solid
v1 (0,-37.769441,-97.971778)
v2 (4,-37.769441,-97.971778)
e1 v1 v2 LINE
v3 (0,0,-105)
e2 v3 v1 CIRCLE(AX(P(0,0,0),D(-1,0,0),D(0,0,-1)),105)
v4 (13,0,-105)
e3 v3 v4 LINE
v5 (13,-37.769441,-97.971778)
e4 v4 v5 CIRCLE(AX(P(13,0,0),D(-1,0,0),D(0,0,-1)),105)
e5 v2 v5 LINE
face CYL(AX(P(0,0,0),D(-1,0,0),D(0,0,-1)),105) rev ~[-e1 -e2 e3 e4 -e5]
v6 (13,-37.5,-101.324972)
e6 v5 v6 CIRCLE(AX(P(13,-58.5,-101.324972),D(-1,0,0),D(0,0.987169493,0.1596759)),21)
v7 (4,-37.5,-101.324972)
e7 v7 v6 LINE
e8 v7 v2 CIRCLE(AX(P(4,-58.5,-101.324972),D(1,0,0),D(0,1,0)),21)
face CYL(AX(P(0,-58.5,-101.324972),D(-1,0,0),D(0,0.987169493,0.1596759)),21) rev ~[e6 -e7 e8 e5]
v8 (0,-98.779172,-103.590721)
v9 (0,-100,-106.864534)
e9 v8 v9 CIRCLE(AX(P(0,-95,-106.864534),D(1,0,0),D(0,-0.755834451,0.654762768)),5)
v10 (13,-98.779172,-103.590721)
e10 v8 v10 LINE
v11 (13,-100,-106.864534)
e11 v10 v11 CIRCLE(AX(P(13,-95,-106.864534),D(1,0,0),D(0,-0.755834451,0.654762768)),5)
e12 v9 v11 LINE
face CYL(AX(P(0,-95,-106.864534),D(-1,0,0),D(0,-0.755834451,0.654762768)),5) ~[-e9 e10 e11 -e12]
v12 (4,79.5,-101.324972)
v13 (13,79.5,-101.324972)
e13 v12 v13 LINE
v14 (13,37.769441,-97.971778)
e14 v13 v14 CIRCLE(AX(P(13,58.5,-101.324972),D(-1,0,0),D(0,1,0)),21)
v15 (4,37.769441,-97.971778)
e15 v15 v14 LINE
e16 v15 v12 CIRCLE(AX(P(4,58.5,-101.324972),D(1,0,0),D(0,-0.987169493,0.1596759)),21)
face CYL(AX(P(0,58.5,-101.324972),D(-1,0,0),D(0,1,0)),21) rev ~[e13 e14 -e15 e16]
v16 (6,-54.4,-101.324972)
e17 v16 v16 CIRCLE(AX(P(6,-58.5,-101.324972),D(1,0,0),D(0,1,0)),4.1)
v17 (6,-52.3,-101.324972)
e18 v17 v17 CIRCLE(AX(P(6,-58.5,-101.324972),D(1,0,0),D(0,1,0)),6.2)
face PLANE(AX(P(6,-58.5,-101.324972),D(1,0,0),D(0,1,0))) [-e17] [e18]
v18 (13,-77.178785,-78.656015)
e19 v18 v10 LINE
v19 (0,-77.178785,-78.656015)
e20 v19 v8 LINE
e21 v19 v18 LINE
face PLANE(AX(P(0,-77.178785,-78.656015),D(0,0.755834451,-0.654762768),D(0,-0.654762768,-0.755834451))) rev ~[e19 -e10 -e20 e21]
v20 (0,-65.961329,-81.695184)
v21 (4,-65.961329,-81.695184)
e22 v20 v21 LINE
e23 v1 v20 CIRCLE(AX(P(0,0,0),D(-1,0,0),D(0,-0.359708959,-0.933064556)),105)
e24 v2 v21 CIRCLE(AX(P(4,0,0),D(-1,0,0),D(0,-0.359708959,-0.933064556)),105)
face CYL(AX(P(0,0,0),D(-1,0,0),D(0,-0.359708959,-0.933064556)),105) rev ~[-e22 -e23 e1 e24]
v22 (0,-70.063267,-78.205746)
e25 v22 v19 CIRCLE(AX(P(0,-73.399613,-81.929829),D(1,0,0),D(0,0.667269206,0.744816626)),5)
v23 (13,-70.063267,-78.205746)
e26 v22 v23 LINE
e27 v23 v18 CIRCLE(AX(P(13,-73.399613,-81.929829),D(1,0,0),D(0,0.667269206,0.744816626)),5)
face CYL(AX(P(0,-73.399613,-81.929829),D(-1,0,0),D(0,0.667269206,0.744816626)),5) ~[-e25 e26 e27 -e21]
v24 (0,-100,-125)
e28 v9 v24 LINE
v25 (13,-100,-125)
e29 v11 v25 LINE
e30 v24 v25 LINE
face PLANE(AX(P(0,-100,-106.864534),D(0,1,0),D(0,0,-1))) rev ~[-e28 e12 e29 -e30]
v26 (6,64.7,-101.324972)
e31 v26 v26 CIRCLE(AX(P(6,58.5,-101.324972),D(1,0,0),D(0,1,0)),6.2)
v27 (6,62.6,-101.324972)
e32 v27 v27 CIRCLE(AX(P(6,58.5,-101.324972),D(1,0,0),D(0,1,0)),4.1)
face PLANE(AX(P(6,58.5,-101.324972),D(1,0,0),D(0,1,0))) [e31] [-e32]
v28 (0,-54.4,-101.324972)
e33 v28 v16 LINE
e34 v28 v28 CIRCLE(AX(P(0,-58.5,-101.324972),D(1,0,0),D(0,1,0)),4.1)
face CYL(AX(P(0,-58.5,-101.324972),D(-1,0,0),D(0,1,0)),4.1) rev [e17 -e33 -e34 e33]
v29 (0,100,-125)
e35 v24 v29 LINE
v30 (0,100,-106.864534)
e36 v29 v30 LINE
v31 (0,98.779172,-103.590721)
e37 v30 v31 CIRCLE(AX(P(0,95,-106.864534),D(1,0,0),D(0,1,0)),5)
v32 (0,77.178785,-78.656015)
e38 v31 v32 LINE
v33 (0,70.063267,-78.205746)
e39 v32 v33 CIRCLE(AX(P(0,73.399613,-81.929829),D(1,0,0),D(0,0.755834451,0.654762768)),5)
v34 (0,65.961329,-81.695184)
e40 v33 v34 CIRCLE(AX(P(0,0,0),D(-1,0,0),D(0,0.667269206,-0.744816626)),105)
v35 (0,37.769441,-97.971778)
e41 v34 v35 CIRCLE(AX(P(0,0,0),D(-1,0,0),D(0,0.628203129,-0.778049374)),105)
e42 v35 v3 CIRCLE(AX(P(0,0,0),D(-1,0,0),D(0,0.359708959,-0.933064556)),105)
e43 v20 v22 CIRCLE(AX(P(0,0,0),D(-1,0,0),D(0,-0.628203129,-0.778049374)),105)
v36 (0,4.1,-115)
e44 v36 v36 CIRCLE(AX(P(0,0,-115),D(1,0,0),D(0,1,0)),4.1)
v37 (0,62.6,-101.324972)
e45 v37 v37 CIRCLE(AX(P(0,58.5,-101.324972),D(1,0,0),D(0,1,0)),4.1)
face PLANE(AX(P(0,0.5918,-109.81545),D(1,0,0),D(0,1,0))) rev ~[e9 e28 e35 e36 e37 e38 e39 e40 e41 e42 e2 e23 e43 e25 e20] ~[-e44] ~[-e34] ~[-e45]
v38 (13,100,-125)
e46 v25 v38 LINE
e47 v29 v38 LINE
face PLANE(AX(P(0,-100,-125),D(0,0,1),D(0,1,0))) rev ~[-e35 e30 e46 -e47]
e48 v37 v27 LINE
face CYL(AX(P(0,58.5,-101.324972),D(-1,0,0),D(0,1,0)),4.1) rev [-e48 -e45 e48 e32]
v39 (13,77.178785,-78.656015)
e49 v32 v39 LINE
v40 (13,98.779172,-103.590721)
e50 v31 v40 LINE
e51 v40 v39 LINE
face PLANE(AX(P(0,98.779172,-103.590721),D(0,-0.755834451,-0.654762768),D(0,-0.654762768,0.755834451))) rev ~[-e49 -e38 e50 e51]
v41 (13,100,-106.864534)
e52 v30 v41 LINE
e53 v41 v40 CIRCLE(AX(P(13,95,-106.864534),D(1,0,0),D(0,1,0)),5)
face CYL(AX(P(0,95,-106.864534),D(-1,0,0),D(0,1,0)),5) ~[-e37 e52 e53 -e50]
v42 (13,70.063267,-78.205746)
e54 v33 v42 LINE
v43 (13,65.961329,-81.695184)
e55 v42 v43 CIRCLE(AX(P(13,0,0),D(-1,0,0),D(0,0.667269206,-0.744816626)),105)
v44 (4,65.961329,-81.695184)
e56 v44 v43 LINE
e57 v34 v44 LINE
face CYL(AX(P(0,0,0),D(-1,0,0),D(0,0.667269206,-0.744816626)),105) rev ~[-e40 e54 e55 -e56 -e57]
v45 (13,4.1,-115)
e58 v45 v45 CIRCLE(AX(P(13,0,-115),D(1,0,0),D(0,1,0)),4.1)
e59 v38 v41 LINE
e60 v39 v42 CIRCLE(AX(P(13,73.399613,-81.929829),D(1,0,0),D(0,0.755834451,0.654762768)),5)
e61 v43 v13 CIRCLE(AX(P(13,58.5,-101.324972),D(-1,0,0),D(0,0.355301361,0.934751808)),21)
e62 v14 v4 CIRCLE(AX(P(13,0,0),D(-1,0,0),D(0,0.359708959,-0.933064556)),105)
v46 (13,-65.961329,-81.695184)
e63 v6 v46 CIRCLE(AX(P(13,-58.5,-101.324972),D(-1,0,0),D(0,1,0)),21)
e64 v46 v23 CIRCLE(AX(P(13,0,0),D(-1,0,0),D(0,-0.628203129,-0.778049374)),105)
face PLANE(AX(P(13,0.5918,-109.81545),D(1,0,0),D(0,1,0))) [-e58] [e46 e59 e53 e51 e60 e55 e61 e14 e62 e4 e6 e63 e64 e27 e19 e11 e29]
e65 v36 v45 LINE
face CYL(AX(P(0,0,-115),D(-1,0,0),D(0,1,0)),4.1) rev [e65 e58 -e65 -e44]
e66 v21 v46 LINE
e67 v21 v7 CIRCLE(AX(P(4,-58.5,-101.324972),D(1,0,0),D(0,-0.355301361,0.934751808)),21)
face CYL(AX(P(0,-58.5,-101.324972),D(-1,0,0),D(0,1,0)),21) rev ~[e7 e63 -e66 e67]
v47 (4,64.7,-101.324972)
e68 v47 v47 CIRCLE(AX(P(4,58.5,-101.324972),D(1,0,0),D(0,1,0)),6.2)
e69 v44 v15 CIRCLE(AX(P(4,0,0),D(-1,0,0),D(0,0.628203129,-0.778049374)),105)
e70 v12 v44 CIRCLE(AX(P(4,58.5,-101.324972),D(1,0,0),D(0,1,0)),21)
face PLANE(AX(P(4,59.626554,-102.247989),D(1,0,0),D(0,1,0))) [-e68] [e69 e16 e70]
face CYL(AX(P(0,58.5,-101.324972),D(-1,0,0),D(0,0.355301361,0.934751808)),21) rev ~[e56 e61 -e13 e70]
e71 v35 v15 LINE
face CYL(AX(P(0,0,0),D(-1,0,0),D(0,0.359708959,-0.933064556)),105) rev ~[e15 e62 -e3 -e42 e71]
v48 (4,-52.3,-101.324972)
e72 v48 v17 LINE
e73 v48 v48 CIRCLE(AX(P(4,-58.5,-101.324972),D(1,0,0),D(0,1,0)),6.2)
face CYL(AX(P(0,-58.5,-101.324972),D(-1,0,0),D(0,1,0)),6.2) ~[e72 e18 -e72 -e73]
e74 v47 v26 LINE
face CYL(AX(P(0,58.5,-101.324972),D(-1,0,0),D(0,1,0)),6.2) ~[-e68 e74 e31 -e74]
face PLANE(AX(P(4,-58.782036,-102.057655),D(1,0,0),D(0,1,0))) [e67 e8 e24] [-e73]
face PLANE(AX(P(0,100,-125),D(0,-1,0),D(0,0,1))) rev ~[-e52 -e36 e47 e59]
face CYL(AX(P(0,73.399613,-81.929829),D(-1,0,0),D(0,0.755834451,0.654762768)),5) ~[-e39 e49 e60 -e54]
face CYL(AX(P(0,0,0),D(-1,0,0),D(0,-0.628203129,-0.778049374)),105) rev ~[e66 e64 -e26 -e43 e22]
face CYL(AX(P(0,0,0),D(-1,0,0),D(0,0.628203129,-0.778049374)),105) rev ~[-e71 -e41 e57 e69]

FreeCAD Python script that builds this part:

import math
import FreeCAD as App
import Part
import Sketcher
Q = App.Units.Quantity

doc = App.newDocument("Part")
params = doc.addObject("Spreadsheet::Sheet", "Params")
for row, (alias, value) in enumerate([
    ("sketch1_diameter", "12.4 mm"),
    ("sketch1_diameter2", "8.2 mm"),
    ("pad1_length", "6 mm"),
    ("sketch2_radius", "21 mm"),
    ("sketch2_radius2", "105 mm"),
    ("sketch2_diameter", "12.4 mm"),
    ("pad2_length", "4 mm"),
    ("sketch3_diameter", "12.4 mm"),
    ("sketch3_diameter2", "8.2 mm"),
    ("pad3_length", "6 mm"),
    ("sketch4_radius", "105 mm"),
    ("sketch4_radius2", "21 mm"),
    ("sketch4_diameter", "12.4 mm"),
    ("pad4_length", "4 mm"),
    ("sketch5_radius", "21 mm"),
    ("sketch5_radius2", "105 mm"),
    ("sketch5_radius3", "5 mm"),
    ("sketch5_radius4", "5 mm"),
    ("sketch5_radius5", "5 mm"),
    ("pad5_length", "13 mm"),
], start=1):
    params.set(f"A{row}", alias)
    params.set(f"B{row}", "=" + value)
    params.setAlias(f"B{row}", alias)

body = doc.addObject("PartDesign::Body", "Body")

# Sketch on YZ plane
sketch1 = body.newObject("Sketcher::SketchObject", "Sketch")
sketch1.AttachmentSupport = (doc.getObject("YZ_Plane"), [""])
sketch1.MapMode = "FlatFace"
sketch1.addGeometry([
    Part.Circle(App.Vector(58.5, -101.3, 0), App.Vector(0, 0, 1), 6.2),
    Part.Circle(App.Vector(58.5, -101.3, 0), App.Vector(0, 0, 1), 4.1),
], False)
sketch1.addConstraint([
    Sketcher.Constraint("Coincident", 1, 3, 0, 3),
    Sketcher.Constraint("Diameter", 0, Q("12.4 mm")),
    Sketcher.Constraint("Diameter", 1, Q("8.2 mm")),
    Sketcher.Constraint("DistanceX", -1, 1, 0, 3, Q("58.5 mm")),
    Sketcher.Constraint("DistanceY", 0, 3, -1, 1, Q("101.324972 mm")),
])
sketch1.setExpression("Constraints[1]", "Params.sketch1_diameter")
sketch1.setExpression("Constraints[2]", "Params.sketch1_diameter2")
pad1 = body.newObject("PartDesign::Pad", "Pad")
pad1.Profile = sketch1
pad1.setExpression("Length", "Params.pad1_length")

# Sketch on YZ plane
sketch2 = body.newObject("Sketcher::SketchObject", "Sketch001")
sketch2.AttachmentSupport = (doc.getObject("YZ_Plane"), [""])
sketch2.MapMode = "FlatFace"
sketch2.addGeometry([
    Part.ArcOfCircle(Part.Circle(App.Vector(58, -101, 0), App.Vector(0, 0, 1), 21), math.radians(0), math.radians(69)),
    Part.ArcOfCircle(Part.Circle(App.Vector(0, 0, 0), App.Vector(0, 0, 1), 105), math.radians(-68.92), math.radians(-51.08)),
    Part.ArcOfCircle(Part.Circle(App.Vector(58, -101, 0), App.Vector(0, 0, 1), 21), math.radians(171), math.radians(360)),
    Part.Circle(App.Vector(58, -101, 0), App.Vector(0, 0, 1), 6),
], False)
sketch2.addConstraint([
    Sketcher.Constraint("Coincident", 0, 2, 1, 2),
    Sketcher.Constraint("Coincident", 1, 1, 2, 1),
    Sketcher.Constraint("Tangent", 2, 2, 0, 1),
    Sketcher.Constraint("Coincident", 1, 3, -1, 1),
    Sketcher.Constraint("Coincident", 3, 3, 0, 3),
    Sketcher.Constraint("Equal", 0, 2),
    Sketcher.Constraint("Horizontal", 3, 3, 2, 2),
    Sketcher.Constraint("Radius", 0, Q("21 mm")),
    Sketcher.Constraint("Radius", 1, Q("105 mm")),
    Sketcher.Constraint("Diameter", 3, Q("12.4 mm")),
    Sketcher.Constraint("DistanceX", -1, 1, 0, 3, Q("58.5 mm")),
    Sketcher.Constraint("DistanceX", -1, 1, 0, 2, Q("65.961329 mm")),
])
sketch2.setExpression("Constraints[7]", "Params.sketch2_radius")
sketch2.setExpression("Constraints[8]", "Params.sketch2_radius2")
sketch2.setExpression("Constraints[9]", "Params.sketch2_diameter")
pad2 = body.newObject("PartDesign::Pad", "Pad001")
pad2.Profile = sketch2
pad2.setExpression("Length", "Params.pad2_length")
body2 = doc.addObject("PartDesign::Body", "Body001")

# Sketch on YZ plane
sketch3 = body2.newObject("Sketcher::SketchObject", "Sketch002")
sketch3.AttachmentSupport = (doc.getObject("YZ_Plane001"), [""])
sketch3.MapMode = "FlatFace"
sketch3.addGeometry([
    Part.Circle(App.Vector(-58.5, -101.3, 0), App.Vector(0, 0, 1), 6.2),
    Part.Circle(App.Vector(-58.5, -101.3, 0), App.Vector(0, 0, 1), 4.1),
], False)
sketch3.addConstraint([
    Sketcher.Constraint("Coincident", 1, 3, 0, 3),
    Sketcher.Constraint("Diameter", 0, Q("12.4 mm")),
    Sketcher.Constraint("Diameter", 1, Q("8.2 mm")),
    Sketcher.Constraint("DistanceX", 0, 3, -1, 1, Q("58.5 mm")),
    Sketcher.Constraint("DistanceY", 0, 3, -1, 1, Q("101.324972 mm")),
])
sketch3.setExpression("Constraints[1]", "Params.sketch3_diameter")
sketch3.setExpression("Constraints[2]", "Params.sketch3_diameter2")
pad3 = body2.newObject("PartDesign::Pad", "Pad002")
pad3.Profile = sketch3
pad3.setExpression("Length", "Params.pad3_length")

# Sketch on YZ plane
sketch4 = body2.newObject("Sketcher::SketchObject", "Sketch003")
sketch4.AttachmentSupport = (doc.getObject("YZ_Plane001"), [""])
sketch4.MapMode = "FlatFace"
sketch4.addGeometry([
    Part.ArcOfCircle(Part.Circle(App.Vector(0, 0, 0), App.Vector(0, 0, 1), 105), math.radians(-128.92), math.radians(-111.08)),
    Part.ArcOfCircle(Part.Circle(App.Vector(-58.5, -101.3, 0), App.Vector(0, 0, 1), 21), math.radians(111), math.radians(360)),
    Part.ArcOfCircle(Part.Circle(App.Vector(-58.5, -101.3, 0), App.Vector(0, 0, 1), 21), math.radians(0), math.radians(9.19)),
    Part.Circle(App.Vector(-58.5, -101.3, 0), App.Vector(0, 0, 1), 6.2),
], False)
sketch4.addConstraint([
    Sketcher.Constraint("Coincident", 0, 1, 1, 1),
    Sketcher.Constraint("Tangent", 1, 2, 2, 1),
    Sketcher.Constraint("Coincident", 2, 2, 0, 2),
    Sketcher.Constraint("Coincident", 0, 3, -1, 1),
    Sketcher.Constraint("Coincident", 3, 3, 1, 3),
    Sketcher.Constraint("Equal", 1, 2),
    Sketcher.Constraint("Horizontal", 3, 3, 1, 2),
    Sketcher.Constraint("Radius", 0, Q("105 mm")),
    Sketcher.Constraint("Radius", 1, Q("21 mm")),
    Sketcher.Constraint("Diameter", 3, Q("12.4 mm")),
    Sketcher.Constraint("DistanceX", 1, 3, -1, 1, Q("58.5 mm")),
    Sketcher.Constraint("DistanceX", 0, 1, -1, 1, Q("65.961329 mm")),
])
sketch4.setExpression("Constraints[7]", "Params.sketch4_radius")
sketch4.setExpression("Constraints[8]", "Params.sketch4_radius2")
sketch4.setExpression("Constraints[9]", "Params.sketch4_diameter")
pad4 = body2.newObject("PartDesign::Pad", "Pad003")
pad4.Profile = sketch4
pad4.setExpression("Length", "Params.pad4_length")
body.AllowCompound = True
doc.recompute()

boolean = body.newObject("PartDesign::Boolean", "Boolean")
boolean.Type = "Fuse"
boolean.addObjects([body2])

# Sketch on YZ plane
sketch5 = body.newObject("Sketcher::SketchObject", "Sketch004")
sketch5.AttachmentSupport = (doc.getObject("YZ_Plane"), [""])
sketch5.MapMode = "FlatFace"
sketch5.addGeometry([
    Part.ArcOfCircle(Part.Circle(App.Vector(-58.5, -101.324972, 0), App.Vector(0, 0, 1), 21), math.radians(110.811915), math.radians(360)),  # 0
    Part.ArcOfCircle(Part.Circle(App.Vector(0, 0, 0), App.Vector(0, 0, 1), 105), math.radians(-131.856649), math.radians(-128.917677)),  # 1
    Part.ArcOfCircle(Part.Circle(App.Vector(-73.399613, -81.929829, 0), App.Vector(0, 0, 1), 5), math.radians(48.143351), math.radians(139.098336)),  # 2
    Part.LineSegment(App.Vector(-77.178785, -78.656015, 0), App.Vector(-98.779172, -103.590721, 0)),  # 3
    Part.ArcOfCircle(Part.Circle(App.Vector(-95, -106.864534, 0), App.Vector(0, 0, 1), 5), math.radians(139.098336), math.radians(180)),  # 4
    Part.LineSegment(App.Vector(-100, -106.864534, 0), App.Vector(-100, -125, 0)),  # 5
    Part.LineSegment(App.Vector(-100, -125, 0), App.Vector(100, -125, 0)),  # 6
    Part.LineSegment(App.Vector(100, -125, 0), App.Vector(100, -106.864534, 0)),  # 7
    Part.ArcOfCircle(Part.Circle(App.Vector(95, -106.864534, 0), App.Vector(0, 0, 1), 5), math.radians(0), math.radians(40.901664)),  # 8
    Part.LineSegment(App.Vector(98.779172, -103.590721, 0), App.Vector(77.178785, -78.656015, 0)),  # 9
    Part.ArcOfCircle(Part.Circle(App.Vector(73.399613, -81.929829, 0), App.Vector(0, 0, 1), 5), math.radians(40.901664), math.radians(131.856649)),  # 10
    Part.ArcOfCircle(Part.Circle(App.Vector(0, 0, 0), App.Vector(0, 0, 1), 105), math.radians(-51.082323), math.radians(-48.143351)),  # 11
    Part.ArcOfCircle(Part.Circle(App.Vector(58.5, -101.324972, 0), App.Vector(0, 0, 1), 21), math.radians(0), math.radians(69.188085)),  # 12
    Part.ArcOfCircle(Part.Circle(App.Vector(58.5, -101.324972, 0), App.Vector(0, 0, 1), 21), math.radians(170.811915), math.radians(360)),  # 13
    Part.ArcOfCircle(Part.Circle(App.Vector(0, 0, 0), App.Vector(0, 0, 1), 105), math.radians(-90), math.radians(-68.917677)),  # 14
    Part.ArcOfCircle(Part.Circle(App.Vector(0, 0, 0), App.Vector(0, 0, 1), 105), math.radians(-111.082323), math.radians(-90)),  # 15
    Part.ArcOfCircle(Part.Circle(App.Vector(-58.5, -101.324972, 0), App.Vector(0, 0, 1), 21), math.radians(0), math.radians(9.188085)),  # 16
    Part.Circle(App.Vector(0, -115, 0), App.Vector(0, 0, 1), 4.1),  # 17
], False)
sketch5.addConstraint([
    Sketcher.Constraint("Coincident", 0, 1, 1, 2),
    Sketcher.Constraint("Coincident", 1, 1, 2, 1),
    Sketcher.Constraint("Coincident", 2, 2, 3, 1),
    Sketcher.Constraint("Coincident", 3, 2, 4, 1),
    Sketcher.Constraint("Coincident", 4, 2, 5, 1),
    Sketcher.Constraint("Coincident", 5, 2, 6, 1),
    Sketcher.Constraint("Coincident", 6, 2, 7, 1),
    Sketcher.Constraint("Coincident", 7, 2, 8, 1),
    Sketcher.Constraint("Coincident", 8, 2, 9, 1),
    Sketcher.Constraint("Coincident", 9, 2, 10, 1),
    Sketcher.Constraint("Coincident", 10, 2, 11, 2),
    Sketcher.Constraint("Coincident", 11, 1, 12, 2),
    Sketcher.Constraint("Coincident", 12, 1, 13, 2),
    Sketcher.Constraint("Coincident", 13, 1, 14, 2),
    Sketcher.Constraint("Coincident", 14, 1, 15, 2),
    Sketcher.Constraint("Coincident", 15, 1, 16, 2),
    Sketcher.Constraint("Coincident", 16, 1, 0, 2),
    Sketcher.Constraint("Vertical", 5),
    Sketcher.Constraint("Horizontal", 6),
    Sketcher.Constraint("Vertical", 7),
    Sketcher.Constraint("Coincident", 1, 3, -1, 1),
    Sketcher.Constraint("Coincident", 11, 3, -1, 1),
    Sketcher.Constraint("Coincident", 14, 3, -1, 1),
    Sketcher.Constraint("Coincident", 15, 3, -1, 1),
    Sketcher.Constraint("Coincident", 13, 3, 12, 3),
    Sketcher.Constraint("Coincident", 16, 3, 0, 3),
    Sketcher.Constraint("PointOnObject", 17, 3, -2),
    Sketcher.Constraint("PointOnObject", 14, 1, -2),
    Sketcher.Constraint("Radius", 0, Q("21 mm")),
    Sketcher.Constraint("Radius", 1, Q("105 mm")),
    Sketcher.Constraint("Radius", 2, Q("5 mm")),
    Sketcher.Constraint("Radius", 4, Q("5 mm")),
    Sketcher.Constraint("Radius", 8, Q("5 mm")),
    Sketcher.Constraint("Radius", 10, Q("5 mm")),
    Sketcher.Constraint("Radius", 11, Q("105 mm")),
    Sketcher.Constraint("Radius", 12, Q("21 mm")),
    Sketcher.Constraint("Radius", 14, Q("105 mm")),
    Sketcher.Constraint("Diameter", 17, Q("8.2 mm")),
    Sketcher.Constraint("DistanceX", 6, 1, 6, 2, Q("200 mm")),
    Sketcher.Constraint("DistanceX", 4, 3, -1, 1, Q("95 mm")),
    Sketcher.Constraint("DistanceY", 17, 3, -1, 1, Q("115 mm")),
    Sketcher.Constraint("DistanceY", 5, 2, -1, 1, Q("125 mm")),
    Sketcher.Constraint("DistanceX", 0, 3, 12, 3, Q("117 mm")),
    Sketcher.Constraint("DistanceX", 0, 3, -1, 1, Q("58.5 mm")),
    Sketcher.Constraint("Distance", 3, Q("32.989639 mm")),
    Sketcher.Constraint("Distance", 9, Q("32.989639 mm")),
    Sketcher.Constraint("DistanceY", 5, 2, 5, 1, Q("18.135466 mm")),
    Sketcher.Constraint("DistanceY", 7, 1, 7, 2, Q("18.135466 mm")),
    Sketcher.Constraint("DistanceY", 2, 3, -1, 1, Q("81.929829 mm")),
    Sketcher.Constraint("DistanceY", 10, 3, -1, 1, Q("81.929829 mm")),
    Sketcher.Constraint("DistanceX", 0, 1, -1, 1, Q("65.961329 mm")),
    Sketcher.Constraint("DistanceY", 3, 2, -1, 1, Q("103.590721 mm")),
    Sketcher.Constraint("DistanceY", 8, 2, -1, 1, Q("103.590721 mm")),
    Sketcher.Constraint("DistanceX", -1, 1, 11, 1, Q("65.961329 mm")),
    Sketcher.Constraint("DistanceY", 4, 3, 0, 1, Q("25.16935 mm")),
    Sketcher.Constraint("DistanceX", 1, 1, 0, 1, Q("4.101938 mm")),
    Sketcher.Constraint("DistanceX", 10, 3, 8, 2, Q("25.37956 mm")),
    Sketcher.Constraint("DistanceX", 10, 2, 9, 2, Q("7.115518 mm")),
    Sketcher.Constraint("DistanceY", 8, 2, 12, 1, Q("2.265748 mm")),
    Sketcher.Constraint("DistanceY", 16, 1, -1, 1, Q("101.324972 mm")),
])
sketch5.setExpression("Constraints[28]", "Params.sketch5_radius")
sketch5.setExpression("Constraints[29]", "Params.sketch5_radius2")
sketch5.setExpression("Constraints[30]", "Params.sketch5_radius3")
sketch5.setExpression("Constraints[31]", "Params.sketch5_radius4")
sketch5.setExpression("Constraints[32]", "Params.sketch5_radius5")
pad5 = body.newObject("PartDesign::Pad", "Pad004")
pad5.Profile = sketch5
pad5.setExpression("Length", "Params.pad5_length")

doc.recompute()
